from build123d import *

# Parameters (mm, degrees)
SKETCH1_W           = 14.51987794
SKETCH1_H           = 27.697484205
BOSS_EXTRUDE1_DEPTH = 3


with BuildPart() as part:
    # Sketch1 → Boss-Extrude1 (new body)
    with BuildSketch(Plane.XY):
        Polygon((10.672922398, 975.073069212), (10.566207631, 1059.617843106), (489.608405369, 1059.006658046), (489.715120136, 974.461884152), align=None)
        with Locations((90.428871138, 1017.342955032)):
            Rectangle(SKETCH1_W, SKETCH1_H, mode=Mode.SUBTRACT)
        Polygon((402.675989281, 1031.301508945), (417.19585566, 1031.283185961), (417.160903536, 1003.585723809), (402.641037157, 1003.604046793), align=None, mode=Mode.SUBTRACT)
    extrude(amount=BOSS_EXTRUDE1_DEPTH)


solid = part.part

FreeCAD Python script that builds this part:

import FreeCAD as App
import Part
import Sketcher
from FreeCAD import Vector
Q = App.Units.Quantity


def add_polygon(sketch, points):
    """Adds a closed chain of lines whose ends are joined by coincident constraints."""
    first, n = sketch.GeometryCount, len(points)
    for a, b in zip(points, points[1:] + points[:1]):
        sketch.addGeometry(Part.LineSegment(App.Vector(*a, 0), App.Vector(*b, 0)), False)
    for i in range(n):
        sketch.addConstraint(Sketcher.Constraint("Coincident", first + i, 2, first + (i + 1) % n, 1))

doc = App.newDocument("Part")
params = doc.addObject("Spreadsheet::Sheet", "Params")
for row, (alias, value) in enumerate([
    ("pad1_length", "3 mm"),
], start=1):
    params.set(f"A{row}", alias)
    params.set(f"B{row}", "=" + value)
    params.setAlias(f"B{row}", alias)

body = doc.addObject("PartDesign::Body", "Body")

sketch1 = body.newObject("Sketcher::SketchObject", "Sketch")
sketch1.AttachmentSupport = (doc.getObject("XY_Plane"), [""])
sketch1.MapMode = "FlatFace"
add_polygon(sketch1, [(11, 1060), (11, 975), (490, 974), (490, 1059)])
add_polygon(sketch1, [(83, 1003), (83, 1031), (98, 1031), (98, 1003)])
add_polygon(sketch1, [(403, 1031), (417, 1031), (417, 1004), (403, 1004)])
sketch1.addConstraint([
    Sketcher.Constraint("Vertical", 4),
    Sketcher.Constraint("Horizontal", 5),
    Sketcher.Constraint("Vertical", 6),
    Sketcher.Constraint("Horizontal", 7),
    Sketcher.Constraint("Parallel", 0, 2),
    Sketcher.Constraint("Parallel", 1, 3),
    Sketcher.Constraint("Perpendicular", 8, 9),
    Sketcher.Constraint("Perpendicular", 9, 10),
    Sketcher.Constraint("Perpendicular", 10, 11),
    Sketcher.Constraint("DistanceY", 1, 2, 8, 2, Q("56.821302 mm")),
    Sketcher.Constraint("DistanceX", 9, 2, 2, 2, Q("72.447502 mm")),
    Sketcher.Constraint("Distance", 0, Q("84.544841 mm")),
    Sketcher.Constraint("DistanceX", 5, 1, 5, 2, Q("14.519878 mm")),
    Sketcher.Constraint("DistanceY", 4, 1, 4, 2, Q("27.697484 mm")),
    Sketcher.Constraint("DistanceY", -1, 1, 0, 2, Q("975.073069 mm")),
    Sketcher.Constraint("DistanceX", -1, 1, 1, 2, Q("489.71512 mm")),
    Sketcher.Constraint("DistanceY", -1, 1, 2, 2, Q("1059.006658 mm")),
    Sketcher.Constraint("DistanceX", -1, 1, 5, 2, Q("97.68881 mm")),
    Sketcher.Constraint("DistanceX", -1, 1, 11, 2, Q("402.675989 mm")),
    Sketcher.Constraint("DistanceY", -1, 1, 11, 2, Q("1031.301509 mm")),
    Sketcher.Constraint("DistanceX", 0, 2, 4, 2, Q("72.49601 mm")),
    Sketcher.Constraint("DistanceY", 4, 2, 2, 2, Q("27.814961 mm")),
    Sketcher.Constraint("DistanceY", 1, 2, 9, 2, Q("29.12384 mm")),
    Sketcher.Constraint("DistanceX", 10, 2, 8, 2, Q("14.554819 mm")),
])
pad1 = body.newObject("PartDesign::Pad", "Pad")
pad1.Profile = sketch1
pad1.setExpression("Length", "Params.pad1_length")

doc.recompute()
